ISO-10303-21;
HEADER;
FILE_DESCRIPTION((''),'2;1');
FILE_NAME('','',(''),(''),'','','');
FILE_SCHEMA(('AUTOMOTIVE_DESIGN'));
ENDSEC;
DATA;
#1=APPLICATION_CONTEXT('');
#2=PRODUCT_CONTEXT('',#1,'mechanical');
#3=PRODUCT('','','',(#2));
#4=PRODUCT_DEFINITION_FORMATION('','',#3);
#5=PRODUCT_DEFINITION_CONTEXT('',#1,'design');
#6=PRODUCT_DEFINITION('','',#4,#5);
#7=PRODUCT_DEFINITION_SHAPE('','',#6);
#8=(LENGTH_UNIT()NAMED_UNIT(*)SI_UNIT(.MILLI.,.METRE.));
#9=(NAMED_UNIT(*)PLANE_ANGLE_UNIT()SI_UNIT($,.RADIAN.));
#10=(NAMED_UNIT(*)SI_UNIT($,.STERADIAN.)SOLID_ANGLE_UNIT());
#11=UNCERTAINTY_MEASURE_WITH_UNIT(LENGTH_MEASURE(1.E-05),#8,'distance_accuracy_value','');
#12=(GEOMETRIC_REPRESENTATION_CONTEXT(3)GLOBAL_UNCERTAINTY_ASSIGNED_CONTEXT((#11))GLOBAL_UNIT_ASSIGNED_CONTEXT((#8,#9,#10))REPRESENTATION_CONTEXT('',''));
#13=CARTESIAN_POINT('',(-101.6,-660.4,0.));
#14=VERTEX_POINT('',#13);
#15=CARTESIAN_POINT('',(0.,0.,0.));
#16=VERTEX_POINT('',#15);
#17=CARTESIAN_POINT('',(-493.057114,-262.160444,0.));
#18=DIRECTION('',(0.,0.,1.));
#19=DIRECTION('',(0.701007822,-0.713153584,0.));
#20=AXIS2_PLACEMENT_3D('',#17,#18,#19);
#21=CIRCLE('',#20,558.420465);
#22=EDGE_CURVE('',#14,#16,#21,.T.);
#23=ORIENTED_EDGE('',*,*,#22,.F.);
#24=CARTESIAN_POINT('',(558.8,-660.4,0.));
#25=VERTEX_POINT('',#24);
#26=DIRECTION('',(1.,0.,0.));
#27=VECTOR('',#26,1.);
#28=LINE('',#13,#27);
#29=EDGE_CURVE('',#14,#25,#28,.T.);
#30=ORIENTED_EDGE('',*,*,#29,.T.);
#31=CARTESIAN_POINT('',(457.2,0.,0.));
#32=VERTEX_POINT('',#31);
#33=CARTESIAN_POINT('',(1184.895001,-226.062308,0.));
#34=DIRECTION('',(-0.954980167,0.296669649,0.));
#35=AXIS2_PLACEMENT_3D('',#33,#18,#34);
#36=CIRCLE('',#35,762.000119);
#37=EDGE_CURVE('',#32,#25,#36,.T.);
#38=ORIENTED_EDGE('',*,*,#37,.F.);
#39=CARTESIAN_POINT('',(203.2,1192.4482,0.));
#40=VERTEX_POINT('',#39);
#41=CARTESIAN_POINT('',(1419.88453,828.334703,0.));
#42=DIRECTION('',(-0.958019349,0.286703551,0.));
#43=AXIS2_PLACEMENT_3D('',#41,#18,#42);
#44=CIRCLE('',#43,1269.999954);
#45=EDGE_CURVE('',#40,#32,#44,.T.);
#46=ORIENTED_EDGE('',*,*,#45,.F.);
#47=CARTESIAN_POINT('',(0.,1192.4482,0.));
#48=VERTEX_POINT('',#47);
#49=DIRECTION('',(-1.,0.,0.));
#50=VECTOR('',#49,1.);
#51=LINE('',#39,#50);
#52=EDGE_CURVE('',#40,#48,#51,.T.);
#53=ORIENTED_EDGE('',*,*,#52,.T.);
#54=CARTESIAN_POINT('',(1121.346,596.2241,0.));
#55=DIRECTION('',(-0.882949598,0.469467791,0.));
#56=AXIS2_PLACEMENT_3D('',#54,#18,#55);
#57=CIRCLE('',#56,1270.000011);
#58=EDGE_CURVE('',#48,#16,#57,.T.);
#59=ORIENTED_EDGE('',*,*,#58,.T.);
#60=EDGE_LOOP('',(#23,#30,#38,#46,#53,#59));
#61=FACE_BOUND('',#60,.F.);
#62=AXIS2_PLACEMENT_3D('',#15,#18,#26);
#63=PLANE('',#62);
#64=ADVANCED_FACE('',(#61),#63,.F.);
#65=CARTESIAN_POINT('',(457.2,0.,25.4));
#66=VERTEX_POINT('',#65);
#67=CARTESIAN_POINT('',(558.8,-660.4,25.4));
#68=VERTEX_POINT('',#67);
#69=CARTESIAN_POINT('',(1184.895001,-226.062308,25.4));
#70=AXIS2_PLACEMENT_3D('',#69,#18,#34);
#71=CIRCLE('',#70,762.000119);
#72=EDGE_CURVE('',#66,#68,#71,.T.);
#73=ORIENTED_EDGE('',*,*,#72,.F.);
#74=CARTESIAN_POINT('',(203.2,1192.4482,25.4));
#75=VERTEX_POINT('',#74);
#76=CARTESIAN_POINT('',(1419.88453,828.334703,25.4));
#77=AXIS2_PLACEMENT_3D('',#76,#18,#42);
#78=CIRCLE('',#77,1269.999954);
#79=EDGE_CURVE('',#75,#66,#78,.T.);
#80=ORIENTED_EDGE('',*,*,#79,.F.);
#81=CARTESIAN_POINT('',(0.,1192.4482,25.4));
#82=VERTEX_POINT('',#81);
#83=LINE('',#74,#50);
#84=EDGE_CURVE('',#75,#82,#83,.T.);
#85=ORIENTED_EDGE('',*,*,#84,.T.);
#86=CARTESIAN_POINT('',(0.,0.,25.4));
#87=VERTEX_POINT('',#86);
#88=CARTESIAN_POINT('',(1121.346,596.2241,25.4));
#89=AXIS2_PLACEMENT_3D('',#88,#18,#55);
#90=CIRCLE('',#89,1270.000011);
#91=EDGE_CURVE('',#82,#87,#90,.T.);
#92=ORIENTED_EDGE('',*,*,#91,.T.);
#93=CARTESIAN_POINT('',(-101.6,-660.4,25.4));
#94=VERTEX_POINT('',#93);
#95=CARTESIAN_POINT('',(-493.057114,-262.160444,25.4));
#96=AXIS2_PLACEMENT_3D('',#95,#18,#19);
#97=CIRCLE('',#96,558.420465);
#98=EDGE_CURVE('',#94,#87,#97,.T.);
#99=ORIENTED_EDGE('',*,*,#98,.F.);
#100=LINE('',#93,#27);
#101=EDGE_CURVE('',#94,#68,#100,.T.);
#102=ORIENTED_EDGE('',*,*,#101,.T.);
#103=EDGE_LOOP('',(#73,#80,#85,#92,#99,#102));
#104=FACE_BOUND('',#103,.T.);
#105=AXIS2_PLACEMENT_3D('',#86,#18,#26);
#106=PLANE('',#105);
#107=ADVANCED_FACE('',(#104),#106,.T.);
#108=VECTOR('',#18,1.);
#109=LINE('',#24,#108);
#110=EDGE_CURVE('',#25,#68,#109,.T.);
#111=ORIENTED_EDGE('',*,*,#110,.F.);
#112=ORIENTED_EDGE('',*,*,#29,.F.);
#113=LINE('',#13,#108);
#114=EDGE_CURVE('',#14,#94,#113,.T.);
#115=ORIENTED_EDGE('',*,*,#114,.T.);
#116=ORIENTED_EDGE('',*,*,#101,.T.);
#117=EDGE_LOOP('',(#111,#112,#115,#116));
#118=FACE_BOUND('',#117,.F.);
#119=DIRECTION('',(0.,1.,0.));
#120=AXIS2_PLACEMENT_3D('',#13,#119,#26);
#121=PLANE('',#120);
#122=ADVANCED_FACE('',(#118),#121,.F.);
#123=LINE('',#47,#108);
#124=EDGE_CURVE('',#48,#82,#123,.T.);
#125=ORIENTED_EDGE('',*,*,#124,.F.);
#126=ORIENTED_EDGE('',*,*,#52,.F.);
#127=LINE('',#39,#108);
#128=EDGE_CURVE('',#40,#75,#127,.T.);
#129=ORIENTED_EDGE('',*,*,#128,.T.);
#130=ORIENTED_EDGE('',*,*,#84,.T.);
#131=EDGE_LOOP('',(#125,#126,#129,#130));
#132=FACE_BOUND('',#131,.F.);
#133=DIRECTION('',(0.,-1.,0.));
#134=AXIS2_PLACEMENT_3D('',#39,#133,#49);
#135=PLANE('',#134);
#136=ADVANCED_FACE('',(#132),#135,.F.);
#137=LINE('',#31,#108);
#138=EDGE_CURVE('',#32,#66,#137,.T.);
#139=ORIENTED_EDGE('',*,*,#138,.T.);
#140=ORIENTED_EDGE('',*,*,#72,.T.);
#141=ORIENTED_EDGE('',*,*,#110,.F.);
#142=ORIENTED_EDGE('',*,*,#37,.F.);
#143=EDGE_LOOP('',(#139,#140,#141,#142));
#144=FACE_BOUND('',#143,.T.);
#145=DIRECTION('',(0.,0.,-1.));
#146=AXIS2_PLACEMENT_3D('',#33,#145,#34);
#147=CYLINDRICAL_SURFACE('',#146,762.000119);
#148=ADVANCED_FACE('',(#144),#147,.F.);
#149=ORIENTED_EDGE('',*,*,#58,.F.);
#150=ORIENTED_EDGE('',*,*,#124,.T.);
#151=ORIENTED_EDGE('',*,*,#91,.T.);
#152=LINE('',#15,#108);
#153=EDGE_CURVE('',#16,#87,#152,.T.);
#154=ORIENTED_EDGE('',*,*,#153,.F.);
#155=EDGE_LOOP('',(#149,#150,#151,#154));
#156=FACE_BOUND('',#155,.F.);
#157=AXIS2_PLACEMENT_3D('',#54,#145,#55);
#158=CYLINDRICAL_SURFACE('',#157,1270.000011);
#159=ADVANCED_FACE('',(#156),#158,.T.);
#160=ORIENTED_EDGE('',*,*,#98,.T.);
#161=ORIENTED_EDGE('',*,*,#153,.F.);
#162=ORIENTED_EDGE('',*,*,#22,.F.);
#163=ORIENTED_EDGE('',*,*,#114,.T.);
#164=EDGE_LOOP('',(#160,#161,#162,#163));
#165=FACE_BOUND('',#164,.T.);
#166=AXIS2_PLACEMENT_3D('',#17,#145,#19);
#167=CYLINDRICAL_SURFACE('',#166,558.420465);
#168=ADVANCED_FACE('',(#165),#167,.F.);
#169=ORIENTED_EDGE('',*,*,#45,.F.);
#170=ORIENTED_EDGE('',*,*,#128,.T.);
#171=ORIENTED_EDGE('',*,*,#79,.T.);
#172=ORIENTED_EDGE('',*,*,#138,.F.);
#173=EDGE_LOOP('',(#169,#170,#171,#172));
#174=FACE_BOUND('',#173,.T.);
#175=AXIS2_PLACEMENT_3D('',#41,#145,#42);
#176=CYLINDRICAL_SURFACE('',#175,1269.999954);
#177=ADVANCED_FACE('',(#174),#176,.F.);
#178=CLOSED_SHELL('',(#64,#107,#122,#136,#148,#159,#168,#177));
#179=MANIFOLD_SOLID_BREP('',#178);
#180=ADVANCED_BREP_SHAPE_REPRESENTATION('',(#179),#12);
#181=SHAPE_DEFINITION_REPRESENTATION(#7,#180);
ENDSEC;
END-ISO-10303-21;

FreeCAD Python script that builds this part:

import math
import FreeCAD as App
import Part
import Sketcher
Q = App.Units.Quantity

doc = App.newDocument("Part")
body = doc.addObject("PartDesign::Body", "Body")

sketch1 = body.newObject("Sketcher::SketchObject", "Sketch")
sketch1.AttachmentSupport = (doc.getObject("XY_Plane"), [""])
sketch1.MapMode = "FlatFace"
sketch1.addGeometry([
    Part.LineSegment(App.Vector(203, 1192, 0), App.Vector(0, 1192, 0)),
    Part.ArcOfCircle(Part.Circle(App.Vector(1121, 596, 0), App.Vector(0, 0, 1), 1270), math.radians(152), math.radians(208)),
    Part.ArcOfCircle(Part.Circle(App.Vector(-493, -262, 0), App.Vector(0, 0, 1), 558), math.radians(-45), math.radians(28)),
    Part.LineSegment(App.Vector(-102, -660, 0), App.Vector(559, -660, 0)),
    Part.ArcOfCircle(Part.Circle(App.Vector(1185, -226, 0), App.Vector(0, 0, 1), 762), math.radians(163), math.radians(215)),
    Part.ArcOfCircle(Part.Circle(App.Vector(1420, 828, 0), App.Vector(0, 0, 1), 1270), math.radians(163), math.radians(221)),
], False)
sketch1.addConstraint([
    Sketcher.Constraint("Coincident", 0, 2, 1, 1),
    Sketcher.Constraint("Tangent", 1, 2, 2, 2),
    Sketcher.Constraint("Coincident", 2, 1, 3, 1),
    Sketcher.Constraint("Coincident", 3, 2, 4, 2),
    Sketcher.Constraint("Coincident", 4, 1, 5, 2),
    Sketcher.Constraint("Coincident", 5, 1, 0, 1),
    Sketcher.Constraint("Horizontal", 0),
    Sketcher.Constraint("Horizontal", 3),
    Sketcher.Constraint("Equal", 1, 5),
    Sketcher.Constraint("PointOnObject", 0, 2, -2),
    Sketcher.Constraint("PointOnObject", 4, 1, -1),
    Sketcher.Constraint("Radius", 1, Q("50 in")),
    Sketcher.Constraint("Radius", 4, Q("30 in")),
    Sketcher.Constraint("DistanceX", 0, 2, 0, 1, Q("8 in")),
    Sketcher.Constraint("DistanceX", 3, 1, 3, 2, Q("26 in")),
    Sketcher.Constraint("DistanceY", 3, 2, -1, 1, Q("26 in")),
    Sketcher.Constraint("DistanceX", -1, 1, 4, 1, Q("18 in")),
    Sketcher.Constraint("DistanceX", -1, 1, 3, 2, Q("22 in")),
    Sketcher.Constraint("Radius", 2, Q("558.4206 mm")),
    Sketcher.Constraint("DistanceY", -1, 1, 1, 3, Q("23.4734 in")),
    Sketcher.Constraint("DistanceX", 2, 3, -1, 1, Q("19.4117 in")),
])
pad1 = body.newObject("PartDesign::Pad", "Pad")
pad1.Profile = sketch1
pad1.Length = Q("1 in")

doc.recompute()
